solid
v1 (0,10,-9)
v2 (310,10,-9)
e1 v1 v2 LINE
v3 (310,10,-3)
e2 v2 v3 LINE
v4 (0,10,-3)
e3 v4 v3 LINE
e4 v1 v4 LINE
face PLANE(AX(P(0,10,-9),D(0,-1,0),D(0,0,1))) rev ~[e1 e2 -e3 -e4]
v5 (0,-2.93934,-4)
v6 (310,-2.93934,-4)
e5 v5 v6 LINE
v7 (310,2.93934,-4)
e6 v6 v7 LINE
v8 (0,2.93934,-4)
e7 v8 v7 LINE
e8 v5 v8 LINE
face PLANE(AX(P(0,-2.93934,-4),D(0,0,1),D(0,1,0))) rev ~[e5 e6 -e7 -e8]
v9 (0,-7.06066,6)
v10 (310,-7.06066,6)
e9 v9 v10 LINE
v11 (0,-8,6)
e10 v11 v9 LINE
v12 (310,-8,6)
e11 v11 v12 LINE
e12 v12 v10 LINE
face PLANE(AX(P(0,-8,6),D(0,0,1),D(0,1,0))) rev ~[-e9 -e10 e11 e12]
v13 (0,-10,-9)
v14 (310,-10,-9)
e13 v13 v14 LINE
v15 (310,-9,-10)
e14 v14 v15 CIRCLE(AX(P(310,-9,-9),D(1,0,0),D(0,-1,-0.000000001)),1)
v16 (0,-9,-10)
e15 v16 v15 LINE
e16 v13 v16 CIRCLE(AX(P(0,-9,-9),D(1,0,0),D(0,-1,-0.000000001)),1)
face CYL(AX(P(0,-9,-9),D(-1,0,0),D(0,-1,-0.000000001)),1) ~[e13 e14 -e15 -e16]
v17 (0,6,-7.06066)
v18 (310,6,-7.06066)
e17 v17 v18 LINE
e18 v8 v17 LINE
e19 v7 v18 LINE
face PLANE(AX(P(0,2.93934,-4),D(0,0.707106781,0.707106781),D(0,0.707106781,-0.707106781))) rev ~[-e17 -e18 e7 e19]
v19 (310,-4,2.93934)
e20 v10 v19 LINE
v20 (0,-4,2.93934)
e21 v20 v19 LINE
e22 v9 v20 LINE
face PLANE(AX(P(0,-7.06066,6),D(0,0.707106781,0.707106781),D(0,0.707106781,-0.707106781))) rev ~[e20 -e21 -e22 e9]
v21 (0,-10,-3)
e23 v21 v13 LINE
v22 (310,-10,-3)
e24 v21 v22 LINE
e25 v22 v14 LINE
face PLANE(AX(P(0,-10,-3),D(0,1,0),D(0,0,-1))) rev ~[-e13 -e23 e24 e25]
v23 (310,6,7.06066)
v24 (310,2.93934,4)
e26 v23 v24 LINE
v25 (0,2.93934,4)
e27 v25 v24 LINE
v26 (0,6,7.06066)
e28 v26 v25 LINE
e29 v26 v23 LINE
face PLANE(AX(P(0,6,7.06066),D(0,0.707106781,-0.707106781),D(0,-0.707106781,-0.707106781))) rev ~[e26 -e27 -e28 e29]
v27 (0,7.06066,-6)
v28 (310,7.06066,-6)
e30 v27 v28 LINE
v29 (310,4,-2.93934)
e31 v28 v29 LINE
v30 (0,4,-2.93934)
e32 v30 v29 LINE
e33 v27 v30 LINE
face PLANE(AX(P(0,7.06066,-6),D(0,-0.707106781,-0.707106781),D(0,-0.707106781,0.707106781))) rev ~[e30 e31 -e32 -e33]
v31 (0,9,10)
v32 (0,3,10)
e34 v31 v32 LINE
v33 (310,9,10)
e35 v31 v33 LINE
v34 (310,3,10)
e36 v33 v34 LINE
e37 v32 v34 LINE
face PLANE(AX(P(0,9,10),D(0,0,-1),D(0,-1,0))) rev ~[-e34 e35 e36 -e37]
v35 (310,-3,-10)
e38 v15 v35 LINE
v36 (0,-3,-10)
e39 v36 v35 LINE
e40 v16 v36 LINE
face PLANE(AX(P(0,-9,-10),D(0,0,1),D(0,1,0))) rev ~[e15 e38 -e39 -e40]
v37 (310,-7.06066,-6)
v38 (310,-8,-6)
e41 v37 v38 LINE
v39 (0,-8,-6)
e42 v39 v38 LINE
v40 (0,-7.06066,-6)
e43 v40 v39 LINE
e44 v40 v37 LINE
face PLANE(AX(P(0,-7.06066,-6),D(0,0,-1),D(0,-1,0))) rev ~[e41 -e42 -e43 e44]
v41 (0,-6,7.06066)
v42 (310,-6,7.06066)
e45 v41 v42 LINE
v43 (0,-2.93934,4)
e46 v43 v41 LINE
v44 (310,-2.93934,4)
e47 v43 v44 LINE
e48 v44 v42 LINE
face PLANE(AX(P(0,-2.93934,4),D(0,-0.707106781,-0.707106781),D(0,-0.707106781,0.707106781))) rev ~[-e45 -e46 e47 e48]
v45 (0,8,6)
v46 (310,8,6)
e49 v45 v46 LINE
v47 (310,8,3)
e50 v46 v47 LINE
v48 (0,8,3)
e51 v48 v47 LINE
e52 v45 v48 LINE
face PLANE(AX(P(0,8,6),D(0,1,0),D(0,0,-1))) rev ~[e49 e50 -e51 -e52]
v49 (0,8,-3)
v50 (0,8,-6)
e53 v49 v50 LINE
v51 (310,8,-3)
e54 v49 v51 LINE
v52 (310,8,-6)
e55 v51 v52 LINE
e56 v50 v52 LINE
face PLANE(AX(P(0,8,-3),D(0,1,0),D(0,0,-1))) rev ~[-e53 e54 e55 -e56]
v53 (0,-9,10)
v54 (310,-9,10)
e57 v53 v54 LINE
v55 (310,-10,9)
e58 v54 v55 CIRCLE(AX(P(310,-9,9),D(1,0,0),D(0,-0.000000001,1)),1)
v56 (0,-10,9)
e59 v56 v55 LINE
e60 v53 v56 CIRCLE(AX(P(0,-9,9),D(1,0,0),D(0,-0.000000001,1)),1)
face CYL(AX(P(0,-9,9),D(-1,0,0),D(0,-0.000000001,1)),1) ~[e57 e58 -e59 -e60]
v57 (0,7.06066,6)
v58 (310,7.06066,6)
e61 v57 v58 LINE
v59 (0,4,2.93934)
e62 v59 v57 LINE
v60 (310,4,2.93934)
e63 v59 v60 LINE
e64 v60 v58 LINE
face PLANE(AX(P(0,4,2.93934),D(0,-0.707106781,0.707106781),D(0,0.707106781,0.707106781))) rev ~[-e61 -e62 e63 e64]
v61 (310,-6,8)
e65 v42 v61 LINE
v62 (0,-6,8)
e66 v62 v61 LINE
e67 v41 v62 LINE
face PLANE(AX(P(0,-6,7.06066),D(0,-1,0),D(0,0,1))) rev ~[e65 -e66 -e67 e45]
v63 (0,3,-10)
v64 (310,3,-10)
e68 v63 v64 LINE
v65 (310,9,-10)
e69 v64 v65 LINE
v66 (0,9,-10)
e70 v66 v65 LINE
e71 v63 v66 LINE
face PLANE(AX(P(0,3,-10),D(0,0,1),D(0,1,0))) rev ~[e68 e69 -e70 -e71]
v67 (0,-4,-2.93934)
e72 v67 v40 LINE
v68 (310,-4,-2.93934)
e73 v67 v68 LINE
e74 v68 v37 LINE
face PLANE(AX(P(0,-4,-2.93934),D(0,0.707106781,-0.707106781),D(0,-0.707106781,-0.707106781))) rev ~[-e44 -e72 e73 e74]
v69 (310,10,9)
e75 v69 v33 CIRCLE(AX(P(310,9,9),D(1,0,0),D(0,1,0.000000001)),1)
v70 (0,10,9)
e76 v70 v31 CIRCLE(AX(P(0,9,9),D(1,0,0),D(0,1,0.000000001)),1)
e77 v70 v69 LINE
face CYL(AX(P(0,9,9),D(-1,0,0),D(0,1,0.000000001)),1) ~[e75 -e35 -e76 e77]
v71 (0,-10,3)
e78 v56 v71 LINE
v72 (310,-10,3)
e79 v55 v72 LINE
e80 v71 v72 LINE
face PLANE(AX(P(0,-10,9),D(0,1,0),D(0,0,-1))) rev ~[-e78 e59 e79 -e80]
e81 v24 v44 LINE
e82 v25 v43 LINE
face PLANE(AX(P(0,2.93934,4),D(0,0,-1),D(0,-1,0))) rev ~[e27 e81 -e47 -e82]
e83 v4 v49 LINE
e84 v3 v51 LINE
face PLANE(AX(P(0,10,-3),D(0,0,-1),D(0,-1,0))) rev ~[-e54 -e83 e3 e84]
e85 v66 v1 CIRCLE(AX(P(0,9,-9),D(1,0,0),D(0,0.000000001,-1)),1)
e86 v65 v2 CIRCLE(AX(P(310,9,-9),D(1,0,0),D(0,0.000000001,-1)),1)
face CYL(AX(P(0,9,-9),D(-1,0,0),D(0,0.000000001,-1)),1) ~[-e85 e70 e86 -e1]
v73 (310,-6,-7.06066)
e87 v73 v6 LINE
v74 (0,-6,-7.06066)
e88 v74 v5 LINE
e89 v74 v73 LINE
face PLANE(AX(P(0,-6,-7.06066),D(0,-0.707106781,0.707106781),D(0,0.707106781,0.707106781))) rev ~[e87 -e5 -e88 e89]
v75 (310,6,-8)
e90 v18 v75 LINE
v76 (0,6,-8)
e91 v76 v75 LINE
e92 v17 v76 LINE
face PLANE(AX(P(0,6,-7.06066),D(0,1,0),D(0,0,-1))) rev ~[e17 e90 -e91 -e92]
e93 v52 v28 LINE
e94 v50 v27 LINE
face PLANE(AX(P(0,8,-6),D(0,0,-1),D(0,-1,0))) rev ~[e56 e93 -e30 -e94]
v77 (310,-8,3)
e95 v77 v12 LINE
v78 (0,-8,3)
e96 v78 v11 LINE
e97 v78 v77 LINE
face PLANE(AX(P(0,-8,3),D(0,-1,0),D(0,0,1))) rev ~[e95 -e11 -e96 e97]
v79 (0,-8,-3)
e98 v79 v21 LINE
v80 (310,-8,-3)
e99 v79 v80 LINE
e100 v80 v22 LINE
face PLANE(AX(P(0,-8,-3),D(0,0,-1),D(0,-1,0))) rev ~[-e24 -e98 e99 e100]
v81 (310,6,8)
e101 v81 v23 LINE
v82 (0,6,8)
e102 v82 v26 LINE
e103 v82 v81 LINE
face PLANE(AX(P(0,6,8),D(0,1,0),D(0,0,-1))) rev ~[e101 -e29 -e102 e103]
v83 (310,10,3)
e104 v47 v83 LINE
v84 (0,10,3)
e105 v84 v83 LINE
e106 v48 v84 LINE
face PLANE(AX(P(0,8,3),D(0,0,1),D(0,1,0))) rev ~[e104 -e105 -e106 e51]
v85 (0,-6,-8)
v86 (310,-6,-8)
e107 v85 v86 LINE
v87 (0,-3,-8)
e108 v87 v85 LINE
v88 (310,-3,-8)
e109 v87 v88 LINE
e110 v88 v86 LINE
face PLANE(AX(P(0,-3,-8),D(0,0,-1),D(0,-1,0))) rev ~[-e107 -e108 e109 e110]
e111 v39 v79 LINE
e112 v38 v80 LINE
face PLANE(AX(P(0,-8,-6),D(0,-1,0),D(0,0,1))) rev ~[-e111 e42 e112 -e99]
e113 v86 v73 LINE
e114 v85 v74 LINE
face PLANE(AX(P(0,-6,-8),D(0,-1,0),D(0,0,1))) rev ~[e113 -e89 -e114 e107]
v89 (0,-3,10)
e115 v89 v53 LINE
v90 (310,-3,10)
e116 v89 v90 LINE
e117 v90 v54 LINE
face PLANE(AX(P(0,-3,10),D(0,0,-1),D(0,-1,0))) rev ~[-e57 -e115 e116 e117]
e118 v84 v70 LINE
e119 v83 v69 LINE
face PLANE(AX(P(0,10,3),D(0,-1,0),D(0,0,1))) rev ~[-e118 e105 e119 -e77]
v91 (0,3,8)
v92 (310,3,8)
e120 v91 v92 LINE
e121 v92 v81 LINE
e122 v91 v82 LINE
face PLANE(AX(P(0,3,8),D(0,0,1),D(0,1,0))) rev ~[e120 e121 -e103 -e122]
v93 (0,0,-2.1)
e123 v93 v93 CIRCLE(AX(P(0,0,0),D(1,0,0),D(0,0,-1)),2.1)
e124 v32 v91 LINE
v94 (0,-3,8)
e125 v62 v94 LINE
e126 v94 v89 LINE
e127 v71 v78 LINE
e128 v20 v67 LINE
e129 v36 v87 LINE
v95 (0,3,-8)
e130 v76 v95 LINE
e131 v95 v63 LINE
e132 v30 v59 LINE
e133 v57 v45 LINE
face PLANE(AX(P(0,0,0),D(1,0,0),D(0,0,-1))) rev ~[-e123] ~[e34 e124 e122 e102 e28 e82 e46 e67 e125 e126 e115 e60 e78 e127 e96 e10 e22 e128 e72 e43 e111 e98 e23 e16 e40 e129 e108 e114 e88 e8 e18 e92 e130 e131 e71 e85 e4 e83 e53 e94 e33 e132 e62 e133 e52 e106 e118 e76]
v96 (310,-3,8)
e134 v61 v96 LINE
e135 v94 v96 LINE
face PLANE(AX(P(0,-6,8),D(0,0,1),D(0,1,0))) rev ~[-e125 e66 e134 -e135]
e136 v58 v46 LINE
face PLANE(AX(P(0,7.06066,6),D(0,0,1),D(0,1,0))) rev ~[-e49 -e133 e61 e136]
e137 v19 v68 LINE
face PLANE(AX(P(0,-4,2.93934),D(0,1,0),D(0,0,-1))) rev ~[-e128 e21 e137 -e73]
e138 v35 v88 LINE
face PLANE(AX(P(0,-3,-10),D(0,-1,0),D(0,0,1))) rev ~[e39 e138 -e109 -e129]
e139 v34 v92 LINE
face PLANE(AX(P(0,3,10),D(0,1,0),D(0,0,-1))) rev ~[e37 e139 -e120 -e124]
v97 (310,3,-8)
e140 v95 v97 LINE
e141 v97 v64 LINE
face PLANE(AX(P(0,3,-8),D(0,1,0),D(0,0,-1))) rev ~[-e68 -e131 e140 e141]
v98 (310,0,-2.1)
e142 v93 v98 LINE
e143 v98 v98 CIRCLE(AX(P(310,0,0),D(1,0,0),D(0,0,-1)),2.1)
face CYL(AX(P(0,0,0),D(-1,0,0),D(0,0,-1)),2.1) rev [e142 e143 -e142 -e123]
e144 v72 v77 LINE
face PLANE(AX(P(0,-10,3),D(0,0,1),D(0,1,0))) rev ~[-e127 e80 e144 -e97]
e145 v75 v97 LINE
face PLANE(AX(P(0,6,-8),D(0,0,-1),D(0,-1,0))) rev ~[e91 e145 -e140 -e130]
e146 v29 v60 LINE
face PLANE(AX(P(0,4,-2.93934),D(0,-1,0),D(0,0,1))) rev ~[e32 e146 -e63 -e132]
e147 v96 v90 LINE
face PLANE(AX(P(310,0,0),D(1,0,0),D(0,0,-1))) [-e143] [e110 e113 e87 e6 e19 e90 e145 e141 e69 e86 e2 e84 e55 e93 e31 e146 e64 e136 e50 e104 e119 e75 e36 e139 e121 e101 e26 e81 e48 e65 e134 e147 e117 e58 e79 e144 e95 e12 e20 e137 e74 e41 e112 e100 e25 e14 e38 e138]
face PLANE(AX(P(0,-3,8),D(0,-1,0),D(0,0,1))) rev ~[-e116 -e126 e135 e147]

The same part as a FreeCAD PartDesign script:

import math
import FreeCAD as App
import Part
import Sketcher
Q = App.Units.Quantity

doc = App.newDocument("Part")
body = doc.addObject("PartDesign::Body", "Body")

# Sketch on YZ plane
sketch1 = body.newObject("Sketcher::SketchObject", "Sketch")
sketch1.AttachmentSupport = (doc.getObject("YZ_Plane"), [""])
sketch1.MapMode = "FlatFace"
sketch1.addGeometry([
    Part.LineSegment(App.Vector(9, 10, 0), App.Vector(3, 10, 0)),  # 0
    Part.LineSegment(App.Vector(3, 10, 0), App.Vector(3, 8, 0)),  # 1
    Part.LineSegment(App.Vector(3, 8, 0), App.Vector(6, 8, 0)),  # 2
    Part.LineSegment(App.Vector(6, 8, 0), App.Vector(6, 7.1, 0)),  # 3
    Part.LineSegment(App.Vector(6, 7.1, 0), App.Vector(2.9, 4, 0)),  # 4
    Part.LineSegment(App.Vector(2.9, 4, 0), App.Vector(-2.9, 4, 0)),  # 5
    Part.LineSegment(App.Vector(-2.9, 4, 0), App.Vector(-6, 7.1, 0)),  # 6
    Part.LineSegment(App.Vector(-6, 7.1, 0), App.Vector(-6, 8, 0)),  # 7
    Part.LineSegment(App.Vector(-6, 8, 0), App.Vector(-3, 8, 0)),  # 8
    Part.LineSegment(App.Vector(-3, 8, 0), App.Vector(-3, 10, 0)),  # 9
    Part.LineSegment(App.Vector(-3, 10, 0), App.Vector(-9, 10, 0)),  # 10
    Part.ArcOfCircle(Part.Circle(App.Vector(-9, 9, 0), App.Vector(0, 0, 1), 1), math.radians(90), math.radians(180)),  # 11
    Part.LineSegment(App.Vector(-10, 9, 0), App.Vector(-10, 3, 0)),  # 12
    Part.LineSegment(App.Vector(-10, 3, 0), App.Vector(-8, 3, 0)),  # 13
    Part.LineSegment(App.Vector(-8, 3, 0), App.Vector(-8, 6, 0)),  # 14
    Part.LineSegment(App.Vector(-8, 6, 0), App.Vector(-7.1, 6, 0)),  # 15
    Part.LineSegment(App.Vector(-7.1, 6, 0), App.Vector(-4, 2.9, 0)),  # 16
    Part.LineSegment(App.Vector(-4, 2.9, 0), App.Vector(-4, -2.9, 0)),  # 17
    Part.LineSegment(App.Vector(-4, -2.9, 0), App.Vector(-7.1, -6, 0)),  # 18
    Part.LineSegment(App.Vector(-7.1, -6, 0), App.Vector(-8, -6, 0)),  # 19
    Part.LineSegment(App.Vector(-8, -6, 0), App.Vector(-8, -3, 0)),  # 20
    Part.LineSegment(App.Vector(-8, -3, 0), App.Vector(-10, -3, 0)),  # 21
    Part.LineSegment(App.Vector(-10, -3, 0), App.Vector(-10, -9, 0)),  # 22
    Part.ArcOfCircle(Part.Circle(App.Vector(-9, -9, 0), App.Vector(0, 0, 1), 1), math.radians(-180), math.radians(-90)),  # 23
    Part.LineSegment(App.Vector(-9, -10, 0), App.Vector(-3, -10, 0)),  # 24
    Part.LineSegment(App.Vector(-3, -10, 0), App.Vector(-3, -8, 0)),  # 25
    Part.LineSegment(App.Vector(-3, -8, 0), App.Vector(-6, -8, 0)),  # 26
    Part.LineSegment(App.Vector(-6, -8, 0), App.Vector(-6, -7.1, 0)),  # 27
    Part.LineSegment(App.Vector(-6, -7.1, 0), App.Vector(-2.9, -4, 0)),  # 28
    Part.LineSegment(App.Vector(-2.9, -4, 0), App.Vector(2.9, -4, 0)),  # 29
    Part.LineSegment(App.Vector(2.9, -4, 0), App.Vector(6, -7.1, 0)),  # 30
    Part.LineSegment(App.Vector(6, -7.1, 0), App.Vector(6, -8, 0)),  # 31
    Part.LineSegment(App.Vector(6, -8, 0), App.Vector(3, -8, 0)),  # 32
    Part.LineSegment(App.Vector(3, -8, 0), App.Vector(3, -10, 0)),  # 33
    Part.LineSegment(App.Vector(3, -10, 0), App.Vector(9, -10, 0)),  # 34
    Part.ArcOfCircle(Part.Circle(App.Vector(9, -9, 0), App.Vector(0, 0, 1), 1), math.radians(-90), math.radians(0)),  # 35
    Part.LineSegment(App.Vector(10, -9, 0), App.Vector(10, -3, 0)),  # 36
    Part.LineSegment(App.Vector(10, -3, 0), App.Vector(8, -3, 0)),  # 37
    Part.LineSegment(App.Vector(8, -3, 0), App.Vector(8, -6, 0)),  # 38
    Part.LineSegment(App.Vector(8, -6, 0), App.Vector(7.1, -6, 0)),  # 39
    Part.LineSegment(App.Vector(7.1, -6, 0), App.Vector(4, -2.9, 0)),  # 40
    Part.LineSegment(App.Vector(4, -2.9, 0), App.Vector(4, 2.9, 0)),  # 41
    Part.LineSegment(App.Vector(4, 2.9, 0), App.Vector(7.1, 6, 0)),  # 42
    Part.LineSegment(App.Vector(7.1, 6, 0), App.Vector(8, 6, 0)),  # 43
    Part.LineSegment(App.Vector(8, 6, 0), App.Vector(8, 3, 0)),  # 44
    Part.LineSegment(App.Vector(8, 3, 0), App.Vector(10, 3, 0)),  # 45
    Part.LineSegment(App.Vector(10, 3, 0), App.Vector(10, 9, 0)),  # 46
    Part.ArcOfCircle(Part.Circle(App.Vector(9, 9, 0), App.Vector(0, 0, 1), 1), math.radians(0), math.radians(90)),  # 47
    Part.Circle(App.Vector(0, 0, 0), App.Vector(0, 0, 1), 2.1),  # 48
], False)
sketch1.addConstraint([
    Sketcher.Constraint("Coincident", 0, 2, 1, 1),
    Sketcher.Constraint("Coincident", 1, 2, 2, 1),
    Sketcher.Constraint("Coincident", 2, 2, 3, 1),
    Sketcher.Constraint("Coincident", 3, 2, 4, 1),
    Sketcher.Constraint("Coincident", 4, 2, 5, 1),
    Sketcher.Constraint("Coincident", 5, 2, 6, 1),
    Sketcher.Constraint("Coincident", 6, 2, 7, 1),
    Sketcher.Constraint("Coincident", 7, 2, 8, 1),
    Sketcher.Constraint("Coincident", 8, 2, 9, 1),
    Sketcher.Constraint("Coincident", 9, 2, 10, 1),
    Sketcher.Constraint("Tangent", 10, 2, 11, 1),
    Sketcher.Constraint("Tangent", 11, 2, 12, 1),
    Sketcher.Constraint("Coincident", 12, 2, 13, 1),
    Sketcher.Constraint("Coincident", 13, 2, 14, 1),
    Sketcher.Constraint("Coincident", 14, 2, 15, 1),
    Sketcher.Constraint("Coincident", 15, 2, 16, 1),
    Sketcher.Constraint("Coincident", 16, 2, 17, 1),
    Sketcher.Constraint("Coincident", 17, 2, 18, 1),
    Sketcher.Constraint("Coincident", 18, 2, 19, 1),
    Sketcher.Constraint("Coincident", 19, 2, 20, 1),
    Sketcher.Constraint("Coincident", 20, 2, 21, 1),
    Sketcher.Constraint("Coincident", 21, 2, 22, 1),
    Sketcher.Constraint("Tangent", 22, 2, 23, 1),
    Sketcher.Constraint("Tangent", 23, 2, 24, 1),
    Sketcher.Constraint("Coincident", 24, 2, 25, 1),
    Sketcher.Constraint("Coincident", 25, 2, 26, 1),
    Sketcher.Constraint("Coincident", 26, 2, 27, 1),
    Sketcher.Constraint("Coincident", 27, 2, 28, 1),
    Sketcher.Constraint("Coincident", 28, 2, 29, 1),
    Sketcher.Constraint("Coincident", 29, 2, 30, 1),
    Sketcher.Constraint("Coincident", 30, 2, 31, 1),
    Sketcher.Constraint("Coincident", 31, 2, 32, 1),
    Sketcher.Constraint("Coincident", 32, 2, 33, 1),
    Sketcher.Constraint("Coincident", 33, 2, 34, 1),
    Sketcher.Constraint("Tangent", 34, 2, 35, 1),
    Sketcher.Constraint("Tangent", 35, 2, 36, 1),
    Sketcher.Constraint("Coincident", 36, 2, 37, 1),
    Sketcher.Constraint("Coincident", 37, 2, 38, 1),
    Sketcher.Constraint("Coincident", 38, 2, 39, 1),
    Sketcher.Constraint("Coincident", 39, 2, 40, 1),
    Sketcher.Constraint("Coincident", 40, 2, 41, 1),
    Sketcher.Constraint("Coincident", 41, 2, 42, 1),
    Sketcher.Constraint("Coincident", 42, 2, 43, 1),
    Sketcher.Constraint("Coincident", 43, 2, 44, 1),
    Sketcher.Constraint("Coincident", 44, 2, 45, 1),
    Sketcher.Constraint("Coincident", 45, 2, 46, 1),
    Sketcher.Constraint("Tangent", 46, 2, 47, 1),
    Sketcher.Constraint("Tangent", 47, 2, 0, 1),
    Sketcher.Constraint("Horizontal", 0),
    Sketcher.Constraint("Vertical", 1),
    Sketcher.Constraint("Horizontal", 2),
    Sketcher.Constraint("Vertical", 3),
    Sketcher.Constraint("Horizontal", 5),
    Sketcher.Constraint("Vertical", 7),
    Sketcher.Constraint("Horizontal", 8),
    Sketcher.Constraint("Vertical", 9),
    Sketcher.Constraint("Horizontal", 10),
    Sketcher.Constraint("Vertical", 12),
    Sketcher.Constraint("Horizontal", 13),
    Sketcher.Constraint("Vertical", 14),
    Sketcher.Constraint("Horizontal", 15),
    Sketcher.Constraint("Vertical", 17),
    Sketcher.Constraint("Horizontal", 19),
    Sketcher.Constraint("Vertical", 20),
    Sketcher.Constraint("Horizontal", 21),
    Sketcher.Constraint("Vertical", 22),
    Sketcher.Constraint("Horizontal", 24),
    Sketcher.Constraint("Vertical", 25),
    Sketcher.Constraint("Horizontal", 26),
    Sketcher.Constraint("Vertical", 27),
    Sketcher.Constraint("Horizontal", 29),
    Sketcher.Constraint("Vertical", 31),
    Sketcher.Constraint("Horizontal", 32),
    Sketcher.Constraint("Vertical", 33),
    Sketcher.Constraint("Horizontal", 34),
    Sketcher.Constraint("Vertical", 36),
    Sketcher.Constraint("Horizontal", 37),
    Sketcher.Constraint("Vertical", 38),
    Sketcher.Constraint("Horizontal", 39),
    Sketcher.Constraint("Vertical", 41),
    Sketcher.Constraint("Horizontal", 43),
    Sketcher.Constraint("Vertical", 44),
    Sketcher.Constraint("Horizontal", 45),
    Sketcher.Constraint("Vertical", 46),
    Sketcher.Constraint("Coincident", 48, 3, -1, 1),
    Sketcher.Constraint("Equal", 11, 23),
    Sketcher.Constraint("Equal", 23, 35),
    Sketcher.Constraint("Equal", 35, 47),
    Sketcher.Constraint("Symmetric", 11, 3, 35, 3, -1, 1),
    Sketcher.Constraint("Symmetric", 23, 3, 47, 3, -1, 1),
    Sketcher.Constraint("Symmetric", 1, 2, 25, 2, -1, 1),
    Sketcher.Constraint("Symmetric", 3, 2, 27, 2, -1, 1),
    Sketcher.Constraint("Symmetric", 4, 2, 28, 2, -1, 1),
    Sketcher.Constraint("Symmetric", 6, 2, 30, 2, -1, 1),
    Sketcher.Constraint("Symmetric", 8, 2, 32, 2, -1, 1),
    Sketcher.Constraint("Symmetric", 13, 2, 37, 2, -1, 1),
    Sketcher.Constraint("Symmetric", 15, 2, 39, 2, -1, 1),
    Sketcher.Constraint("Symmetric", 16, 2, 40, 2, -1, 1),
    Sketcher.Constraint("Symmetric", 18, 2, 42, 2, -1, 1),
    Sketcher.Constraint("Symmetric", 20, 2, 44, 2, -1, 1),
    Sketcher.Constraint("Symmetric", 23, 3, 35, 3, -2),
    Sketcher.Constraint("Symmetric", 3, 2, 6, 2, -2),
    Sketcher.Constraint("Symmetric", 1, 2, 8, 2, -2),
    Sketcher.Constraint("Symmetric", 20, 2, 37, 2, -2),
    Sketcher.Constraint("Symmetric", 18, 2, 39, 2, -2),
    Sketcher.Constraint("Perpendicular", 4, 6),
    Sketcher.Constraint("Parallel", 6, 16),
    Sketcher.Constraint("Perpendicular", 16, 18),
    Sketcher.Constraint("Perpendicular", 28, 30),
    Sketcher.Constraint("Perpendicular", 40, 42),
    Sketcher.Constraint("Horizontal", 17, 2, 40, 2),
    Sketcher.Constraint("Equal", 45, 1),
    Sketcher.Constraint("Equal", 43, 3),
    Sketcher.Constraint("Equal", 34, 12),
    Sketcher.Constraint("Equal", 32, 14),
    Sketcher.Constraint("Equal", 29, 17),
    Sketcher.Constraint("Equal", 6, 16),
    Sketcher.Constraint("Radius", 11, Q("1 mm")),
    Sketcher.Constraint("Diameter", 48, Q("4.2 mm")),
    Sketcher.Constraint("DistanceX", 0, 2, 0, 1, Q("6 mm")),
    Sketcher.Constraint("DistanceX", 2, 1, 2, 2, Q("3 mm")),
    Sketcher.Constraint("DistanceX", 13, 1, 13, 2, Q("2 mm")),
    Sketcher.Constraint("DistanceX", 11, 3, -1, 1, Q("9 mm")),
    Sketcher.Constraint("DistanceY", -1, 1, 4, 2, Q("4 mm")),
    Sketcher.Constraint("DistanceX", 5, 2, 5, 1, Q("5.87868 mm")),
])
pad1 = body.newObject("PartDesign::Pad", "Pad")
pad1.Profile = sketch1
pad1.Length = 310

doc.recompute()
